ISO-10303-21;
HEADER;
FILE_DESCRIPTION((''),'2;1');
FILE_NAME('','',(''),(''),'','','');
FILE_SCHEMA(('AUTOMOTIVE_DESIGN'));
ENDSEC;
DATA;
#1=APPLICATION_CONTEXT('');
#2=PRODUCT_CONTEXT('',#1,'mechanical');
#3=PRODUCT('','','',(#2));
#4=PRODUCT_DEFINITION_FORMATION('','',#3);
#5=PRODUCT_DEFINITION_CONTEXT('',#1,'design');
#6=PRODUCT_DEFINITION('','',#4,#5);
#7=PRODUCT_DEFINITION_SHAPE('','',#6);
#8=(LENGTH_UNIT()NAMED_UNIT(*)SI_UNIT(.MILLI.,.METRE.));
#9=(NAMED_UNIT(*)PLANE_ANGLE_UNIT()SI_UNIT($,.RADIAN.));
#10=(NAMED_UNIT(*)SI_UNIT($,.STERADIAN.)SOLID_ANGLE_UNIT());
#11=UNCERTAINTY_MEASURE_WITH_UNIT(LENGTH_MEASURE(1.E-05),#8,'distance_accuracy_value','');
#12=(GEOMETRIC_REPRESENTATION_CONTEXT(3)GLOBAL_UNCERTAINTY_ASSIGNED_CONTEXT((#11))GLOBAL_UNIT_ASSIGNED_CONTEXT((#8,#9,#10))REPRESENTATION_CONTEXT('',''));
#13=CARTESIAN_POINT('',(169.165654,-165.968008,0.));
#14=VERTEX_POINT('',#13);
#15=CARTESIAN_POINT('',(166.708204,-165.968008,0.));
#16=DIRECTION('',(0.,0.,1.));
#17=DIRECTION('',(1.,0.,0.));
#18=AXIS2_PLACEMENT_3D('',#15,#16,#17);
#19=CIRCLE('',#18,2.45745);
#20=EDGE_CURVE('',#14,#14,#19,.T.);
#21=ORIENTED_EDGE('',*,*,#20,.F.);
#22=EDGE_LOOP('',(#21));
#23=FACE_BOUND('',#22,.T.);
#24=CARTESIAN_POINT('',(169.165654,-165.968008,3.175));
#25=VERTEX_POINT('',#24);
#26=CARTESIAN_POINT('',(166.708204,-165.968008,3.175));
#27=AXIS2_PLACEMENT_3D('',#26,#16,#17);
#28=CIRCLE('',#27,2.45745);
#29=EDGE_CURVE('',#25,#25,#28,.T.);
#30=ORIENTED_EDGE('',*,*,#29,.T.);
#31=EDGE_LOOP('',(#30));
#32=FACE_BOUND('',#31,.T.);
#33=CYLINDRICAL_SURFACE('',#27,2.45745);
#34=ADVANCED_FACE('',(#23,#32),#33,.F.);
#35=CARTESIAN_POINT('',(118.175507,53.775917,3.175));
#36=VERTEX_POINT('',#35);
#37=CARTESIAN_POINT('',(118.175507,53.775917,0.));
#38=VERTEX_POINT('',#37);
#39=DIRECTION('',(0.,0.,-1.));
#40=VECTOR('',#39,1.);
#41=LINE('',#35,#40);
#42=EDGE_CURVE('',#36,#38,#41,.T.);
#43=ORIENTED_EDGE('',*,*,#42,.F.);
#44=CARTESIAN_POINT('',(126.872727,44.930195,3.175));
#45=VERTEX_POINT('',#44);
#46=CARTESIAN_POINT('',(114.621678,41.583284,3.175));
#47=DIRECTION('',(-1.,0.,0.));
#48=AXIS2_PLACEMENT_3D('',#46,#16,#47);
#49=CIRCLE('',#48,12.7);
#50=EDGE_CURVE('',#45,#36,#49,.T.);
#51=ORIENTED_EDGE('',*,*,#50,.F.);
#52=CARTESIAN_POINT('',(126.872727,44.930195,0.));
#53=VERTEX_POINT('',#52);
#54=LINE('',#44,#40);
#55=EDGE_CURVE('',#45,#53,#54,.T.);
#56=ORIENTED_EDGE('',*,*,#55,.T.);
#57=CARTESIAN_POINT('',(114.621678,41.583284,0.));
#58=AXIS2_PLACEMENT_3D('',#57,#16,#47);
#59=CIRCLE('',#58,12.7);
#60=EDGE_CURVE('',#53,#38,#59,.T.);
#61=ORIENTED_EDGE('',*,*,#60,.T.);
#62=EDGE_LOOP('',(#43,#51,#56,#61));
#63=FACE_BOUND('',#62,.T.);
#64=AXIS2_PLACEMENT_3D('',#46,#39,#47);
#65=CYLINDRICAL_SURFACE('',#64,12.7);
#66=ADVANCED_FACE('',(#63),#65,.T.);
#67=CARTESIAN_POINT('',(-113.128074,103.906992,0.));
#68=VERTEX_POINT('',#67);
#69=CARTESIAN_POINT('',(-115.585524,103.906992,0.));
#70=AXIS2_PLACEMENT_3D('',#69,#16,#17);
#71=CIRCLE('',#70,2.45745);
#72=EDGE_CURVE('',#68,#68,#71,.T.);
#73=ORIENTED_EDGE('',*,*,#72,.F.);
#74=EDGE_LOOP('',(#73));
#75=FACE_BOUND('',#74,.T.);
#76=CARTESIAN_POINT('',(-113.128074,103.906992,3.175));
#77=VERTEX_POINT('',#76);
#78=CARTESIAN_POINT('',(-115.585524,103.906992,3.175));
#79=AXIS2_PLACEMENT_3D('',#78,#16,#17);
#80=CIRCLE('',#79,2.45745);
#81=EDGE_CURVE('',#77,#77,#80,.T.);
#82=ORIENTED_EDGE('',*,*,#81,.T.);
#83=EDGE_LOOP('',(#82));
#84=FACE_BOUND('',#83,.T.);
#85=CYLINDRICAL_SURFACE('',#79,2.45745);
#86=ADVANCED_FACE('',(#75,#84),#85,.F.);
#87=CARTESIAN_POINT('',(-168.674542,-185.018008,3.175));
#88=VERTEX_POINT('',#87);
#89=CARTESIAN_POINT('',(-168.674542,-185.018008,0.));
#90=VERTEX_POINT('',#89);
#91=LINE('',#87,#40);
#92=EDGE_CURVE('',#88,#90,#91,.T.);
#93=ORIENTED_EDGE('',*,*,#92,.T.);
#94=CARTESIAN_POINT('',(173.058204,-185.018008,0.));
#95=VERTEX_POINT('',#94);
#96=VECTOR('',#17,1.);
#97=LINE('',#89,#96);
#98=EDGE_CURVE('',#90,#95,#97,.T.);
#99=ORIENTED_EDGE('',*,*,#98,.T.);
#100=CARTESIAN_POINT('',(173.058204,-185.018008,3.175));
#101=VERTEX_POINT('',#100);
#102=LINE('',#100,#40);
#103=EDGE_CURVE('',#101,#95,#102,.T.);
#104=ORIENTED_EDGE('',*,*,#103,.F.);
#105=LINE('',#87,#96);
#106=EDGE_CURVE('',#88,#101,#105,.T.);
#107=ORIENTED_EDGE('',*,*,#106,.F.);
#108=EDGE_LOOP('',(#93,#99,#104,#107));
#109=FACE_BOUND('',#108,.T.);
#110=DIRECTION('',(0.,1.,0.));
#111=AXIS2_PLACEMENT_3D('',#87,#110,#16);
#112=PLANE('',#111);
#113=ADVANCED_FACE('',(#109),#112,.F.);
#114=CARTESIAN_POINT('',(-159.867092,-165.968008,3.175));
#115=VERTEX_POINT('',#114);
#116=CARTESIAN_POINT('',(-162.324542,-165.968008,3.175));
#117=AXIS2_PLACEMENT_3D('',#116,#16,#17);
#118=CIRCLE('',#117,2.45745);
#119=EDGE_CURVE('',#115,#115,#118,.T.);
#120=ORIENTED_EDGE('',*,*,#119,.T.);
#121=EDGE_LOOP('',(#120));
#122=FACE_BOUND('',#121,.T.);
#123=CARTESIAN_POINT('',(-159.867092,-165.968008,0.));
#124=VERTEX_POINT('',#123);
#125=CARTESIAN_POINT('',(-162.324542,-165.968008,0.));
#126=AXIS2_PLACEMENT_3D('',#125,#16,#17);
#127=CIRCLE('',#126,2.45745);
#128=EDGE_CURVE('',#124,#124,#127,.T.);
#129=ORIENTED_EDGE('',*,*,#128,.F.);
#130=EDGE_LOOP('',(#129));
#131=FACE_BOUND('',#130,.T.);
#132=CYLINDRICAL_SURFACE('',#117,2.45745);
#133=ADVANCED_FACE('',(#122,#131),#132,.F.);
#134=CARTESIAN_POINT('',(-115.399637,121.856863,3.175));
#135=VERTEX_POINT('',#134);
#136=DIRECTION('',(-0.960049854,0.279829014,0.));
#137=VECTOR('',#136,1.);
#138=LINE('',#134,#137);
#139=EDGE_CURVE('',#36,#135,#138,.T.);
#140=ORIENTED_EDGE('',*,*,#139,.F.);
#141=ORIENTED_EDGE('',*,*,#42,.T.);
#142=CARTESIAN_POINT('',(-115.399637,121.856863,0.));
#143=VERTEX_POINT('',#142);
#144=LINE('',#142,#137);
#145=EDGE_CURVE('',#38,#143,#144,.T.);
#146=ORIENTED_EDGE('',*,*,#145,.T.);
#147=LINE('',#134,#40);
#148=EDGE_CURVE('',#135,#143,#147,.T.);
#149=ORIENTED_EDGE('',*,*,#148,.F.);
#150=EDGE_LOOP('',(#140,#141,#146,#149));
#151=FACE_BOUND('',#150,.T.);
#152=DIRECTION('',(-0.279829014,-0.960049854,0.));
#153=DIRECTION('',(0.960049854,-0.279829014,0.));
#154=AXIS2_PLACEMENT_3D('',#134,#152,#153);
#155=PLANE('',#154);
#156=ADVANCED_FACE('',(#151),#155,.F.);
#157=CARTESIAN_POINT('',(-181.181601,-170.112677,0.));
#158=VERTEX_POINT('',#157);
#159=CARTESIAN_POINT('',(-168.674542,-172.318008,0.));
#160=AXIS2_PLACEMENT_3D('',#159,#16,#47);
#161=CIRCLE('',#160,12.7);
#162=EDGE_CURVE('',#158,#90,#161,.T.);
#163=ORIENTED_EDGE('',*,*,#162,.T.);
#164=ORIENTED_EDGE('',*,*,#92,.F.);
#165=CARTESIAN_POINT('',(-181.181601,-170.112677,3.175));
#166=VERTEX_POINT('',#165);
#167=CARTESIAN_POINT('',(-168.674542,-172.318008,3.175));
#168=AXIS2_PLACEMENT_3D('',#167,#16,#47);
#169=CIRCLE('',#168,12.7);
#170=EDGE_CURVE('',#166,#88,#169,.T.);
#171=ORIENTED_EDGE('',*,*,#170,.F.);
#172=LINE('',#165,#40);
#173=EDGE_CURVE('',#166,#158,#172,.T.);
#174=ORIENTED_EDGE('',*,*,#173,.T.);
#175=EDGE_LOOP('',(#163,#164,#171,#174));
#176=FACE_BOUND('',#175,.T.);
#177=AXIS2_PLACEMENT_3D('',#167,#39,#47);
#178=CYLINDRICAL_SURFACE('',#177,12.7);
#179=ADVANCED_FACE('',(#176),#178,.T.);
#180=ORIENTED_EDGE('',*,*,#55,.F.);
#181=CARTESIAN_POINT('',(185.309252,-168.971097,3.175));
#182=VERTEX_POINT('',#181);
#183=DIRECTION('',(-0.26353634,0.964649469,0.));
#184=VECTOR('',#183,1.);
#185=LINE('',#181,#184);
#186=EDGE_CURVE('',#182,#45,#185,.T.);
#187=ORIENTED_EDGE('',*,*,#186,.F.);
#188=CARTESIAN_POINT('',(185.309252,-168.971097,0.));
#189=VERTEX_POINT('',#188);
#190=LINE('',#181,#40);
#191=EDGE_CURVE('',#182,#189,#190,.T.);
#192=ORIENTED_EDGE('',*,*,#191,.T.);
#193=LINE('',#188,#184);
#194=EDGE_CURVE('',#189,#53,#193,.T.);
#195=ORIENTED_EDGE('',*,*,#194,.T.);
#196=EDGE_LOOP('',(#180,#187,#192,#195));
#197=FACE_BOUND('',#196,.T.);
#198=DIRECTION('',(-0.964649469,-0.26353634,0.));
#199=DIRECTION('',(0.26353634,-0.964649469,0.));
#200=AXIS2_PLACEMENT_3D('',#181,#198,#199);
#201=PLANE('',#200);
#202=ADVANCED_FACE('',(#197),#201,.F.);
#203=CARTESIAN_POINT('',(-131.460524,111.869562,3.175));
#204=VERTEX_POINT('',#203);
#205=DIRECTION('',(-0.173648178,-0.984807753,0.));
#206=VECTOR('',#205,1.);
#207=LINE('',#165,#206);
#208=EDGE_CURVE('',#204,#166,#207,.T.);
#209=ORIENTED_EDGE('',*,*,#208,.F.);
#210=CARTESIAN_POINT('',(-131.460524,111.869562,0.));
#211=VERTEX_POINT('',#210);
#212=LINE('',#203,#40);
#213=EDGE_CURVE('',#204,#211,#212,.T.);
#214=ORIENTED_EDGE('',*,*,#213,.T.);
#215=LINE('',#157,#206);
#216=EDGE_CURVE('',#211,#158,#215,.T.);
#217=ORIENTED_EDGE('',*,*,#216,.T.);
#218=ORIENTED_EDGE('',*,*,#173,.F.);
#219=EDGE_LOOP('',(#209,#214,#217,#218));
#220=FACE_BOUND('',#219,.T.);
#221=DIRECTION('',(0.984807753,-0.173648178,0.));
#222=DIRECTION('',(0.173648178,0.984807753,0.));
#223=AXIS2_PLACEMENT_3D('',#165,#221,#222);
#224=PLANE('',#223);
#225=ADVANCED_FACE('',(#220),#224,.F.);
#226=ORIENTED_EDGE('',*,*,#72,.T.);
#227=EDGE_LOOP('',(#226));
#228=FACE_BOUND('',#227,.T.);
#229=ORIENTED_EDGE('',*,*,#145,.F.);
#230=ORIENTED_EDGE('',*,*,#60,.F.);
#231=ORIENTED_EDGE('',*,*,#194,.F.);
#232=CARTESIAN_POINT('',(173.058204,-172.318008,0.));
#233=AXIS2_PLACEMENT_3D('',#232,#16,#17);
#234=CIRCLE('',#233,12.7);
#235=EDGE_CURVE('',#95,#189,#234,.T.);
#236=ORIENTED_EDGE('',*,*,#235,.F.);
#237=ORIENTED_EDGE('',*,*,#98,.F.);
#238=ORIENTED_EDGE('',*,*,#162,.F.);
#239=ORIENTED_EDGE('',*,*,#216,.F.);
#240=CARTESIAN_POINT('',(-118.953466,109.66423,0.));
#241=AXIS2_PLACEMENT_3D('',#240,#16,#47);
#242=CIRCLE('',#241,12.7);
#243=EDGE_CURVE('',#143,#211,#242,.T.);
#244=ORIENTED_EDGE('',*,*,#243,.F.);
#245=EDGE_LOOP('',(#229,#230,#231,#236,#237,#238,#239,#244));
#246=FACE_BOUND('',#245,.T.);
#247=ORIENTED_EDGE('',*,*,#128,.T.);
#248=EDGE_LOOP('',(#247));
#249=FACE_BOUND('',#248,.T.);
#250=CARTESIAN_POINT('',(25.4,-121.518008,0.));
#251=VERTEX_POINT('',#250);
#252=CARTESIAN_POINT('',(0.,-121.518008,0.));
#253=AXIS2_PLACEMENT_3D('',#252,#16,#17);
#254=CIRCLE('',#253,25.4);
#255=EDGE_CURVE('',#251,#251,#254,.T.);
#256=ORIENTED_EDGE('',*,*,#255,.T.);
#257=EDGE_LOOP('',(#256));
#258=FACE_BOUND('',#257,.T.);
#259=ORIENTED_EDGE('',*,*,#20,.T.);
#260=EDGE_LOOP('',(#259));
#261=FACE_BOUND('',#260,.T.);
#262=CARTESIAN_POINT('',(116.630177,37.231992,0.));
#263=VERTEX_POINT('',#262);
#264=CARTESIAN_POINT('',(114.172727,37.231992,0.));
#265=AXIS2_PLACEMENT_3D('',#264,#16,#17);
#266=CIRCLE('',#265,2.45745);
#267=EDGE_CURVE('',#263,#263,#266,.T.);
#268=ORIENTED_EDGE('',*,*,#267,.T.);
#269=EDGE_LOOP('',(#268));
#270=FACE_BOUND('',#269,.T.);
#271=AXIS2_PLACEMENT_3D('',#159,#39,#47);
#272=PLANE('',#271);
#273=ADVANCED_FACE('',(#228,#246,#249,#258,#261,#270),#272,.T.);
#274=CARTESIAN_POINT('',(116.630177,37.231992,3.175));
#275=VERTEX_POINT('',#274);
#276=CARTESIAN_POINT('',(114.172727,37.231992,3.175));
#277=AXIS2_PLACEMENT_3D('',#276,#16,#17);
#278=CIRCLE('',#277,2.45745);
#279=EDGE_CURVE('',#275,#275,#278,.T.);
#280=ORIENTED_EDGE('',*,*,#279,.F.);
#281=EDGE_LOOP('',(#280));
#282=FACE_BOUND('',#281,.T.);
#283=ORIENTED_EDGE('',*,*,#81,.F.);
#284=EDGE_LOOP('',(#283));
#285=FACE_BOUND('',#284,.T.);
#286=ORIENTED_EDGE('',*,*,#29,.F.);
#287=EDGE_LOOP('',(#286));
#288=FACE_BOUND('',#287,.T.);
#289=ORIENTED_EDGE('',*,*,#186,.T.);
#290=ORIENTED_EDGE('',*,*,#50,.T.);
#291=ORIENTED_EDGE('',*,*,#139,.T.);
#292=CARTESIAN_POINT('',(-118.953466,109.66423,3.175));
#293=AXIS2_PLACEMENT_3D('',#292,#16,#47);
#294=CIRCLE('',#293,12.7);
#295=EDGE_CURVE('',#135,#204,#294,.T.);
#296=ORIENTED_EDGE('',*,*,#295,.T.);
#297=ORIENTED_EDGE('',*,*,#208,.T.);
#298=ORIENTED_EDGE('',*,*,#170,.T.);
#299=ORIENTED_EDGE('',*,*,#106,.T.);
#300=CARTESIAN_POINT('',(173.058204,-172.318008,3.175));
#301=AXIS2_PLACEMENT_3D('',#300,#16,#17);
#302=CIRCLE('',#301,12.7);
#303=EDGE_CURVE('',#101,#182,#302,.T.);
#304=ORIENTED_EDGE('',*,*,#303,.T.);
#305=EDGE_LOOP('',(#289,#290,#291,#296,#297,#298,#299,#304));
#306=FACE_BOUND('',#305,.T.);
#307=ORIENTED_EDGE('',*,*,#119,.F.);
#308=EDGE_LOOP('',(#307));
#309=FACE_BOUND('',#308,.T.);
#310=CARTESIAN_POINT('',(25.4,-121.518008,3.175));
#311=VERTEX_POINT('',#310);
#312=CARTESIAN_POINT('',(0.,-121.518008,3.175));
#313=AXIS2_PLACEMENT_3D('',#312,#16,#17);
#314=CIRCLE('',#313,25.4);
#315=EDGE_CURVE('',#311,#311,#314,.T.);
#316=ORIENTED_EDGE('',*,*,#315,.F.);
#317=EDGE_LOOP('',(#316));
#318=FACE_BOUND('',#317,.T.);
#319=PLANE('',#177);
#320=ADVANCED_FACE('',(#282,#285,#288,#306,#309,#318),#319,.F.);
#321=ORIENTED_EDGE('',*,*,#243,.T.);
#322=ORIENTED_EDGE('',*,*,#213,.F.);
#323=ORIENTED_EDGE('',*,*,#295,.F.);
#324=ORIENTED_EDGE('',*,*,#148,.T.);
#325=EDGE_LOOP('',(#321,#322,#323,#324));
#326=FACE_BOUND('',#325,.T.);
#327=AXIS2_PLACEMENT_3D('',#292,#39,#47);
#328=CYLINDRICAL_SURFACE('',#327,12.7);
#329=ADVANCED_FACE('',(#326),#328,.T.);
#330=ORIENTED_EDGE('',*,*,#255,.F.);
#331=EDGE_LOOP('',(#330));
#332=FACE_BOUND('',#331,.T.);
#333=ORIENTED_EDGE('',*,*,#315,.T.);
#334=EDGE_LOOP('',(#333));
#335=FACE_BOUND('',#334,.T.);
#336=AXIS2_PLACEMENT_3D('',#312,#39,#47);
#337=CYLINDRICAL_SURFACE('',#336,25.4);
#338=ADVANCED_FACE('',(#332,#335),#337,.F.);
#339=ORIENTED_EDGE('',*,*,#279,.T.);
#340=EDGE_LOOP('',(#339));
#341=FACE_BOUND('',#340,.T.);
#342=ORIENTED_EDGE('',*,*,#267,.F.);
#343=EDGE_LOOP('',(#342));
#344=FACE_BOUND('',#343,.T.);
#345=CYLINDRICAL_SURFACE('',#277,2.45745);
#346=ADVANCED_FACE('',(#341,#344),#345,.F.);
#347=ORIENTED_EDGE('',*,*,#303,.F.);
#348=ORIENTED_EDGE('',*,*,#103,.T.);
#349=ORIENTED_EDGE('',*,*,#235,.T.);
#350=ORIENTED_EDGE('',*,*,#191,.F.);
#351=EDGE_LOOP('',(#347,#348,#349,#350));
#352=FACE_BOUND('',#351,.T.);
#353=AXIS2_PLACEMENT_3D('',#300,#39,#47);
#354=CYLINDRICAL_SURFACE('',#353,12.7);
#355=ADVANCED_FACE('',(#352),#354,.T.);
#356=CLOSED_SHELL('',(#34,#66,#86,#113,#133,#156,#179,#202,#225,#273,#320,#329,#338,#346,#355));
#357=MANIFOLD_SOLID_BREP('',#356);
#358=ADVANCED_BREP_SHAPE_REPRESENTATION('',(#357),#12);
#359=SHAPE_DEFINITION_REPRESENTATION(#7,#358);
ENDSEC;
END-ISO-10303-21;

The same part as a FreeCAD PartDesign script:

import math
import FreeCAD as App
import Part
import Sketcher
Q = App.Units.Quantity

doc = App.newDocument("Part")
body = doc.addObject("PartDesign::Body", "Body")

sketch1 = doc.addObject("Sketcher::SketchObject", "Sketch")
body.addObject(sketch1)
sketch1.AttachmentSupport = (doc.XY_Plane, [""])
sketch1.MapMode = "FlatFace"
sketch1.addGeometry([
    Part.LineSegment(App.Vector(118, 54, 0), App.Vector(-115, 122, 0)),
    Part.ArcOfCircle(Part.Circle(App.Vector(-119, 110, 0), App.Vector(0, 0, 1), 13), math.radians(74), math.radians(170)),
    Part.LineSegment(App.Vector(-131, 112, 0), App.Vector(-181, -170, 0)),
    Part.ArcOfCircle(Part.Circle(App.Vector(-169, -172, 0), App.Vector(0, 0, 1), 13), math.radians(170), math.radians(270)),
    Part.LineSegment(App.Vector(-169, -185, 0), App.Vector(173, -185, 0)),
    Part.ArcOfCircle(Part.Circle(App.Vector(173, -172, 0), App.Vector(0, 0, 1), 13), math.radians(-90), math.radians(15)),
    Part.LineSegment(App.Vector(185, -169, 0), App.Vector(127, 45, 0)),
    Part.ArcOfCircle(Part.Circle(App.Vector(115, 42, 0), App.Vector(0, 0, 1), 13), math.radians(15), math.radians(74)),
    Part.Circle(App.Vector(0, -122, 0), App.Vector(0, 0, 1), 25),
], False)
sketch1.addConstraint([
    Sketcher.Constraint("Tangent", 0, 2, 1, 1),
    Sketcher.Constraint("Tangent", 1, 2, 2, 1),
    Sketcher.Constraint("Tangent", 2, 2, 3, 1),
    Sketcher.Constraint("Tangent", 3, 2, 4, 1),
    Sketcher.Constraint("Tangent", 4, 2, 5, 1),
    Sketcher.Constraint("Tangent", 5, 2, 6, 1),
    Sketcher.Constraint("Tangent", 6, 2, 7, 1),
    Sketcher.Constraint("Tangent", 7, 2, 0, 1),
    Sketcher.Constraint("Horizontal", 4),
    Sketcher.Constraint("Equal", 1, 3),
    Sketcher.Constraint("Equal", 3, 5),
    Sketcher.Constraint("Equal", 5, 7),
    Sketcher.Constraint("PointOnObject", 8, 3, -2),
    Sketcher.Constraint("Diameter", 8, Q("2 in")),
    Sketcher.Constraint("Radius", 1, Q("0.5 in")),
    Sketcher.Constraint("Angle", 2, Q("-100 deg")),
    Sketcher.Constraint("DistanceY", 3, 3, 8, 3, Q("2 in")),
    Sketcher.Constraint("Angle", 0, Q("163.75 deg")),
    Sketcher.Constraint("Angle", 6, Q("105.28 deg")),
    Sketcher.Constraint("DistanceX", 2, 2, -1, 1, Q("181.181601 mm")),
    Sketcher.Constraint("Distance", 2, Q("286.332269 mm")),
    Sketcher.Constraint("DistanceX", 4, 1, 4, 2, Q("341.732747 mm")),
    Sketcher.Constraint("DistanceY", -1, 1, 1, 3, Q("109.66423 mm")),
])
pad1 = doc.addObject("PartDesign::Pad", "Pad")
body.addObject(pad1)
pad1.Profile = sketch1
pad1.Length = Q("0.125 in")

sketch2 = doc.addObject("Sketcher::SketchObject", "Sketch001")
body.addObject(sketch2)
sketch2.AttachmentSupport = (doc.XY_Plane, [""])
sketch2.MapMode = "FlatFace"
sketch2.AttachmentOffset = App.Placement(App.Vector(0, 0, 0.125 * 25.4), App.Rotation())
sketch2.addGeometry([
    Part.Circle(App.Vector(-115.6, 103.9, 0), App.Vector(0, 0, 1), 2.5),
    Part.Circle(App.Vector(114.2, 37.2, 0), App.Vector(0, 0, 1), 2.5),
    Part.Circle(App.Vector(166.7, -166, 0), App.Vector(0, 0, 1), 2.5),
    Part.Circle(App.Vector(-162.3, -166, 0), App.Vector(0, 0, 1), 2.5),
], False)
sketch2.addConstraint([
    Sketcher.Constraint("Equal", 0, 1),
    Sketcher.Constraint("Equal", 1, 2),
    Sketcher.Constraint("Equal", 2, 3),
    Sketcher.Constraint("Horizontal", 2, 3, 3, 3),
    Sketcher.Constraint("DistanceY", 2, 3, 1, 3, Q("8 in")),
    Sketcher.Constraint("Diameter", 0, Q("0.1935 in")),
    Sketcher.Constraint("DistanceY", 1, 3, 0, 3, Q("2.625 in")),
    Sketcher.Constraint("DistanceY", -1, 1, 0, 3, Q("103.906992 mm")),
    Sketcher.Constraint("DistanceX", 0, 3, 1, 3, Q("229.758251 mm")),
    Sketcher.Constraint("DistanceX", 0, 3, 2, 3, Q("282.293728 mm")),
    Sketcher.Constraint("DistanceX", 3, 3, 0, 3, Q("46.739018 mm")),
    Sketcher.Constraint("DistanceX", 0, 3, -1, 1, Q("115.585524 mm")),
])
doc.recompute()
hole = doc.addObject("PartDesign::Hole", "Hole")
body.addObject(hole)
hole.Profile = sketch2
hole.ThreadType = "None"
hole.Diameter = Q("0.1935 in")
hole.DepthType = "ThroughAll"

doc.recompute()
